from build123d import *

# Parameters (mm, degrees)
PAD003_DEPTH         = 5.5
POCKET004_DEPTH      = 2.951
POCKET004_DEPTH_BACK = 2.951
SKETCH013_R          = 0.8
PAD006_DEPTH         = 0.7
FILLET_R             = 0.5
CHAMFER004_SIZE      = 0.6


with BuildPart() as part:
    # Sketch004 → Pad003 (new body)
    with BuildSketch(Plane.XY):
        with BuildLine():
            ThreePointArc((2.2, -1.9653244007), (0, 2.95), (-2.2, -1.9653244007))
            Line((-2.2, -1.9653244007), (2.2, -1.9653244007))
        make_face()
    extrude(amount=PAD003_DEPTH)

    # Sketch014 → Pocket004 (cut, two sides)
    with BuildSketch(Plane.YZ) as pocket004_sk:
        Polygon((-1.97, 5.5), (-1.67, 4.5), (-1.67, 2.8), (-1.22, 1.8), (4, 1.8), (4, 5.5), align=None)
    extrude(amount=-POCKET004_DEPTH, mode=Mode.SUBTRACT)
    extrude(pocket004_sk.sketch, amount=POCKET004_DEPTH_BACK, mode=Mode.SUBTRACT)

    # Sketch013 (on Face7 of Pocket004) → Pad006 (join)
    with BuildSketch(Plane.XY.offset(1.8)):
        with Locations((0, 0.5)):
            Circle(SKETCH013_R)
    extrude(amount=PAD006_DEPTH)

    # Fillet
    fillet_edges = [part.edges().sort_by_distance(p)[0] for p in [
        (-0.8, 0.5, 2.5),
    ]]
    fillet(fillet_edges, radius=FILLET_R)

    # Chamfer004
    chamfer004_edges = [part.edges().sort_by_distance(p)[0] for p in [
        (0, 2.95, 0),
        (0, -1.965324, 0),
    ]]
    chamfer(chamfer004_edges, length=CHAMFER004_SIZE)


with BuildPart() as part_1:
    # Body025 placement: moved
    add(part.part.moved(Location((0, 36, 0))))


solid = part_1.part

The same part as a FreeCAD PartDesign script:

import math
import FreeCAD as App
import Part
import Sketcher


def edges_at(feature, points):
    """Names of the edges that pass closest to the given points."""
    edges = feature.Shape.Edges
    near = lambda p: min(range(len(edges)), key=lambda i: edges[i].distToShape(Part.Vertex(*p))[0])
    return sorted({f"Edge{near(p) + 1}" for p in points})


def add_polygon(sketch, points):
    """Adds a closed chain of lines whose ends are joined by coincident constraints."""
    first, n = sketch.GeometryCount, len(points)
    for a, b in zip(points, points[1:] + points[:1]):
        sketch.addGeometry(Part.LineSegment(App.Vector(*a, 0), App.Vector(*b, 0)), False)
    for i in range(n):
        sketch.addConstraint(Sketcher.Constraint("Coincident", first + i, 2, first + (i + 1) % n, 1))

doc = App.newDocument("Part")
body = doc.addObject("PartDesign::Body", "Body")

sketch1 = body.newObject("Sketcher::SketchObject", "Sketch")
sketch1.AttachmentSupport = (doc.getObject("XY_Plane"), [""])
sketch1.MapMode = "FlatFace"
sketch1.addGeometry([
    Part.ArcOfCircle(Part.Circle(App.Vector(0, 0, 0), App.Vector(0, 0, 1), 2.95), math.radians(-41.775348), math.radians(221.775348)),
    Part.LineSegment(App.Vector(-2.2, -1.965324, 0), App.Vector(2.2, -1.965324, 0)),
], False)
sketch1.addConstraint([
    Sketcher.Constraint("Coincident", 0, 1, 1, 2),
    Sketcher.Constraint("Coincident", 1, 1, 0, 2),
    Sketcher.Constraint("Horizontal", 1),
    Sketcher.Constraint("Coincident", 0, 3, -1, 1),
    Sketcher.Constraint("Radius", 0, 2.95),
    Sketcher.Constraint("DistanceX", 1, 1, 1, 2, 4.4),
])
pad1 = body.newObject("PartDesign::Pad", "Pad")
pad1.Profile = sketch1
pad1.Length = 5.5

sketch2 = body.newObject("Sketcher::SketchObject", "Sketch001")
sketch2.AttachmentSupport = (doc.getObject("YZ_Plane"), [""])
sketch2.MapMode = "FlatFace"
add_polygon(sketch2, [(-1.97, 5.5), (-1.67, 4.5), (-1.67, 2.8), (-1.22, 1.8), (4, 1.8), (4, 5.5)])
sketch2.addConstraint([
    Sketcher.Constraint("Vertical", 1),
    Sketcher.Constraint("Horizontal", 3),
    Sketcher.Constraint("Vertical", 4),
    Sketcher.Constraint("Horizontal", 5),
    Sketcher.Constraint("DistanceY", 1, 2, 1, 1, 1.7),
    Sketcher.Constraint("DistanceY", 4, 1, 4, 2, 3.7),
    Sketcher.Constraint("DistanceX", -1, 1, 3, 2, 4.0),
    Sketcher.Constraint("DistanceY", 2, 2, 1, 2, 1.0),
    Sketcher.Constraint("DistanceX", 3, 1, 3, 2, 5.22),
    Sketcher.Constraint("DistanceX", 5, 2, 5, 1, 5.97),
    Sketcher.Constraint("DistanceY", -1, 1, 0, 2, 4.5),
    Sketcher.Constraint("DistanceX", 5, 2, 0, 2, 0.3),
])
pocket1 = body.newObject("PartDesign::Pocket", "Pocket")
pocket1.Profile = sketch2
pocket1.Type = "ThroughAll"
pocket1.Midplane = True

sketch3 = body.newObject("Sketcher::SketchObject", "Sketch002")
sketch3.AttachmentSupport = (doc.getObject("XY_Plane"), [""])
sketch3.MapMode = "FlatFace"
sketch3.AttachmentOffset = App.Placement(App.Vector(0, 0, 1.8), App.Rotation())
sketch3.addGeometry(Part.Circle(App.Vector(0, 0.5, 0), App.Vector(0, 0, 1), 0.8), False)
sketch3.addConstraint([
    Sketcher.Constraint("PointOnObject", 0, 3, -2),
    Sketcher.Constraint("Diameter", 0, 1.6),
    Sketcher.Constraint("DistanceY", -1, 1, 0, 3, 0.5),
])
pad2 = body.newObject("PartDesign::Pad", "Pad001")
pad2.Profile = sketch3
pad2.Length = 0.7
doc.recompute()

fillet = body.newObject("PartDesign::Fillet", "Fillet")
fillet.Base = (pad2, edges_at(pad2, [(-0.8, 0.5, 2.5)]))
fillet.Radius = 0.5
doc.recompute()

chamfer = body.newObject("PartDesign::Chamfer", "Chamfer")
chamfer.Base = (fillet, edges_at(fillet, [(0, 2.95, 0), (0, -1.965, 0)]))
chamfer.Size = 0.6
body2 = doc.addObject("PartDesign::Body", "Body001")
doc.recompute()

body.Placement = App.Placement(App.Vector(0, 36, 0), App.Rotation(App.Vector(0, 0, 1), 0))
boolean = body2.newObject("PartDesign::Boolean", "Boolean")
boolean.Type = "Fuse"
boolean.addObjects([body])

doc.recompute()
